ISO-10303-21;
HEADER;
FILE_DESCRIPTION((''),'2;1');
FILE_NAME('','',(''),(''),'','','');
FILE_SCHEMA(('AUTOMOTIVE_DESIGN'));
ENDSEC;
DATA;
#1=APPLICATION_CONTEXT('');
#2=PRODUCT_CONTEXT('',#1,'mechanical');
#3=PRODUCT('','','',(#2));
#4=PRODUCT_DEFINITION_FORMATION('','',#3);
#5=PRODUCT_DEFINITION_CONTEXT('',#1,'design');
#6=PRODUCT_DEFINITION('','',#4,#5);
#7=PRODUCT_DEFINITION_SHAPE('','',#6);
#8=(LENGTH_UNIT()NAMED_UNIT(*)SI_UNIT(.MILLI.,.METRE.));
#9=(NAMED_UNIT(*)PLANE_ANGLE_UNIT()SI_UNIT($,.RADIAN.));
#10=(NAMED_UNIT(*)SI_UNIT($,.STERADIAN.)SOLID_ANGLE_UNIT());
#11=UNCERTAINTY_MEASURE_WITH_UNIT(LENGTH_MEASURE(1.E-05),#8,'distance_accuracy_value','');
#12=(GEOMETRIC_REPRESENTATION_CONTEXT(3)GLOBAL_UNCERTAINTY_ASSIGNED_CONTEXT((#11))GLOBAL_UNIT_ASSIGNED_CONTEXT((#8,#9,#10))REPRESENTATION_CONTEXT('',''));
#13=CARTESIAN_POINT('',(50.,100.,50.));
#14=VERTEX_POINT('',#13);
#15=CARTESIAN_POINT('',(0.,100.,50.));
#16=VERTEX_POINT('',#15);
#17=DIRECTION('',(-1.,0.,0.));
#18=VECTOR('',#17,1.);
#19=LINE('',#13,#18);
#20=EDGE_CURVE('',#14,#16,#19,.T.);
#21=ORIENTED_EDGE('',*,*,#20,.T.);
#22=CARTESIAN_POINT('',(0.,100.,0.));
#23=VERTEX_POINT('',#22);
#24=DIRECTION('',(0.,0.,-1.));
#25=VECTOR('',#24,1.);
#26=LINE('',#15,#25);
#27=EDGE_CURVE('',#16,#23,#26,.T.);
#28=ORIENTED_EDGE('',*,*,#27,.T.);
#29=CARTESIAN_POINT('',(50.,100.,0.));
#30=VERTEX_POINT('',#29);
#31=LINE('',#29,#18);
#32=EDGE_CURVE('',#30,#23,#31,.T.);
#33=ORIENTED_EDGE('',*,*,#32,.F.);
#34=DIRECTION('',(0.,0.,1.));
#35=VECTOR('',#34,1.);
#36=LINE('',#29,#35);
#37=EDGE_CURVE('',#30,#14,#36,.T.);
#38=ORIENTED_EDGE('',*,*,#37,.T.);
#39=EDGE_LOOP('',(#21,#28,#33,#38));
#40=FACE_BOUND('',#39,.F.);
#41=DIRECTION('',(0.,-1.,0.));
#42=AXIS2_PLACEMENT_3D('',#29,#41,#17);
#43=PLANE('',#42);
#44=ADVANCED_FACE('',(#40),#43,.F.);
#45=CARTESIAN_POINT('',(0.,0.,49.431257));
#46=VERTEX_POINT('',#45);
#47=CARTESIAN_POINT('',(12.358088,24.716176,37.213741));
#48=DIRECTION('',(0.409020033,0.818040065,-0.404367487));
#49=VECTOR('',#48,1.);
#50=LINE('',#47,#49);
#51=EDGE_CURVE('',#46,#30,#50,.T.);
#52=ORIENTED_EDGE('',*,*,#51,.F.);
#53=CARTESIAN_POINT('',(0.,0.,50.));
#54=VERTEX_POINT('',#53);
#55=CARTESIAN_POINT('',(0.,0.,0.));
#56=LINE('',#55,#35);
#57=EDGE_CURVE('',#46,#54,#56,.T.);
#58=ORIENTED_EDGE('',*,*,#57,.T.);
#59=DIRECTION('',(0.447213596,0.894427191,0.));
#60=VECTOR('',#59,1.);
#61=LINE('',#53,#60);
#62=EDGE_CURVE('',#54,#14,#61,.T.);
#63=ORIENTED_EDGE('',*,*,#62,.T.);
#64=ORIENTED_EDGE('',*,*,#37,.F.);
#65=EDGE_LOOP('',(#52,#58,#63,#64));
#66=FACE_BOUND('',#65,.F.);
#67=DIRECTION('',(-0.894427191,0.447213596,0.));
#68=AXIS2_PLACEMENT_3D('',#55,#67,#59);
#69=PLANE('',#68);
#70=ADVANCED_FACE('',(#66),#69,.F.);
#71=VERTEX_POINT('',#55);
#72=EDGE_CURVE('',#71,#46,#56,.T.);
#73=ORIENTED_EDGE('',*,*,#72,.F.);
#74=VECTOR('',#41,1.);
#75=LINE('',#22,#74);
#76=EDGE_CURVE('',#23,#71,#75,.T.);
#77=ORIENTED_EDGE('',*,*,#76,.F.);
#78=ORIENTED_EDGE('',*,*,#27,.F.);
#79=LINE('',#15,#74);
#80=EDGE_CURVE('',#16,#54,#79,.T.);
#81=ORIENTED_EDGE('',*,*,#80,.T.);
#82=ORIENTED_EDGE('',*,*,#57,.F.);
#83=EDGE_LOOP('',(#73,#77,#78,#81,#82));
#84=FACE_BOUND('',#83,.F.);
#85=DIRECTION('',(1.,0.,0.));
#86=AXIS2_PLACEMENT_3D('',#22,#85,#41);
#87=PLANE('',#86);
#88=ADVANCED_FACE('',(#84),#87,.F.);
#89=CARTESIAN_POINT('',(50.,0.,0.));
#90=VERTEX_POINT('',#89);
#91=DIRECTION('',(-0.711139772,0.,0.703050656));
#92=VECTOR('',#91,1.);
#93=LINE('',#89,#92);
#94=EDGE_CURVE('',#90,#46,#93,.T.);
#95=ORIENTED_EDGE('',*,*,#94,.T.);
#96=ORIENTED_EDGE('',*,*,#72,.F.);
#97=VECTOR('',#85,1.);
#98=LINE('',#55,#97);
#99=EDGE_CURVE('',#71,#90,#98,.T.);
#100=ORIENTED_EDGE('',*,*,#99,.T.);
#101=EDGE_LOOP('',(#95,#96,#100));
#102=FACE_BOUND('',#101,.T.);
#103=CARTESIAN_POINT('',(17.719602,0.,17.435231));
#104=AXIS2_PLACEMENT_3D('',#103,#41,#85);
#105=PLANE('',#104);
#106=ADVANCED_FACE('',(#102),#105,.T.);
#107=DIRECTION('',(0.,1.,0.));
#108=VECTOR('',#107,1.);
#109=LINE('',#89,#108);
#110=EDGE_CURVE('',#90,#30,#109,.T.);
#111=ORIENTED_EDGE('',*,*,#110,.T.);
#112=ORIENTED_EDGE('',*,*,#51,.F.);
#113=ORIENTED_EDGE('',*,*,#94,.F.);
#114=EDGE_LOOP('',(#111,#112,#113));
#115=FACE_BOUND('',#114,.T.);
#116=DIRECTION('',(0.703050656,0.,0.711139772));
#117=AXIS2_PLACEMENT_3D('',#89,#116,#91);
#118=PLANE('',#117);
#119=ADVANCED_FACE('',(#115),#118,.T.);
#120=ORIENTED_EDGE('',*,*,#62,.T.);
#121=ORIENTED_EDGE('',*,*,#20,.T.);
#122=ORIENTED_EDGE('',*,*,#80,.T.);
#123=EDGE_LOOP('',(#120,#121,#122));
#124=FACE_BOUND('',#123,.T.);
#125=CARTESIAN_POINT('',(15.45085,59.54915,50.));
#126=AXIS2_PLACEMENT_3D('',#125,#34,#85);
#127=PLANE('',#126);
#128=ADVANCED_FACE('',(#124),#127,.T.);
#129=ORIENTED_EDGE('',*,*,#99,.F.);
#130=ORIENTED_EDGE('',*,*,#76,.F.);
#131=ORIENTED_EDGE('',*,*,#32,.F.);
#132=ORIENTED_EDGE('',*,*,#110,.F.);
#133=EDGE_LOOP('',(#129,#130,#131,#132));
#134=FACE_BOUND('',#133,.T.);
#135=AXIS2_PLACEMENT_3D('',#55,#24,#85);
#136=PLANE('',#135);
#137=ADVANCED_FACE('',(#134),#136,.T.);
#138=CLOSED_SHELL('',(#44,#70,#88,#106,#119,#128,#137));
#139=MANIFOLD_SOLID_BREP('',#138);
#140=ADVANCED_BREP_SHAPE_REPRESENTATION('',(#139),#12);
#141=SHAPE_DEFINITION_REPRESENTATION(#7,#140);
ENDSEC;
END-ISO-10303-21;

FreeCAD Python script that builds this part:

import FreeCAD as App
import Part
import Sketcher

V = App.Vector
Q = App.Units.Quantity


def add_polygon(sketch, points):
    """Adds a closed chain of lines whose ends are joined by coincident constraints."""
    first, n = sketch.GeometryCount, len(points)
    for a, b in zip(points, points[1:] + points[:1]):
        sketch.addGeometry(Part.LineSegment(App.Vector(*a, 0), App.Vector(*b, 0)), False)
    for i in range(n):
        sketch.addConstraint(Sketcher.Constraint("Coincident", first + i, 2, first + (i + 1) % n, 1))

doc = App.newDocument("Part")
body = doc.addObject("PartDesign::Body", "Body")

sketch1 = body.newObject("Sketcher::SketchObject", "Sketch")
sketch1.AttachmentSupport = (doc.getObject("XY_Plane"), [""])
sketch1.MapMode = "FlatFace"
add_polygon(sketch1, [(0, 100), (0, 0), (50, 100)])
sketch1.addConstraint([
    Sketcher.Constraint("Vertical", 0),
    Sketcher.Constraint("Horizontal", 2),
    Sketcher.Constraint("Coincident", 0, 2, -1, 1),
    Sketcher.Constraint("DistanceX", 2, 2, 2, 1, Q("50 mm")),
    Sketcher.Constraint("DistanceY", 0, 2, 0, 1, Q("100 mm")),
])
pad1 = body.newObject("PartDesign::Pad", "Pad")
pad1.Profile = sketch1
pad1.Length = 50

sketch2 = body.newObject("Sketcher::SketchObject", "Sketch001")
sketch2.AttachmentSupport = (doc.getObject("XZ_Plane"), [""])
sketch2.MapMode = "FlatFace"
add_polygon(sketch2, [(50, 0), (0, 49.431257), (0, 0)])
sketch2.addConstraint([
    Sketcher.Constraint("Vertical", 1),
    Sketcher.Constraint("Horizontal", 2),
    Sketcher.Constraint("Coincident", 1, 2, -1, 1),
    Sketcher.Constraint("DistanceX", 2, 1, 2, 2, Q("50 mm")),
    Sketcher.Constraint("DistanceY", 1, 2, 1, 1, Q("49.431257 mm")),
])
pad2 = body.newObject("PartDesign::Pad", "Pad001")
pad2.Profile = sketch2
pad2.Length = 100
pad2.Reversed = True

doc.recompute()
